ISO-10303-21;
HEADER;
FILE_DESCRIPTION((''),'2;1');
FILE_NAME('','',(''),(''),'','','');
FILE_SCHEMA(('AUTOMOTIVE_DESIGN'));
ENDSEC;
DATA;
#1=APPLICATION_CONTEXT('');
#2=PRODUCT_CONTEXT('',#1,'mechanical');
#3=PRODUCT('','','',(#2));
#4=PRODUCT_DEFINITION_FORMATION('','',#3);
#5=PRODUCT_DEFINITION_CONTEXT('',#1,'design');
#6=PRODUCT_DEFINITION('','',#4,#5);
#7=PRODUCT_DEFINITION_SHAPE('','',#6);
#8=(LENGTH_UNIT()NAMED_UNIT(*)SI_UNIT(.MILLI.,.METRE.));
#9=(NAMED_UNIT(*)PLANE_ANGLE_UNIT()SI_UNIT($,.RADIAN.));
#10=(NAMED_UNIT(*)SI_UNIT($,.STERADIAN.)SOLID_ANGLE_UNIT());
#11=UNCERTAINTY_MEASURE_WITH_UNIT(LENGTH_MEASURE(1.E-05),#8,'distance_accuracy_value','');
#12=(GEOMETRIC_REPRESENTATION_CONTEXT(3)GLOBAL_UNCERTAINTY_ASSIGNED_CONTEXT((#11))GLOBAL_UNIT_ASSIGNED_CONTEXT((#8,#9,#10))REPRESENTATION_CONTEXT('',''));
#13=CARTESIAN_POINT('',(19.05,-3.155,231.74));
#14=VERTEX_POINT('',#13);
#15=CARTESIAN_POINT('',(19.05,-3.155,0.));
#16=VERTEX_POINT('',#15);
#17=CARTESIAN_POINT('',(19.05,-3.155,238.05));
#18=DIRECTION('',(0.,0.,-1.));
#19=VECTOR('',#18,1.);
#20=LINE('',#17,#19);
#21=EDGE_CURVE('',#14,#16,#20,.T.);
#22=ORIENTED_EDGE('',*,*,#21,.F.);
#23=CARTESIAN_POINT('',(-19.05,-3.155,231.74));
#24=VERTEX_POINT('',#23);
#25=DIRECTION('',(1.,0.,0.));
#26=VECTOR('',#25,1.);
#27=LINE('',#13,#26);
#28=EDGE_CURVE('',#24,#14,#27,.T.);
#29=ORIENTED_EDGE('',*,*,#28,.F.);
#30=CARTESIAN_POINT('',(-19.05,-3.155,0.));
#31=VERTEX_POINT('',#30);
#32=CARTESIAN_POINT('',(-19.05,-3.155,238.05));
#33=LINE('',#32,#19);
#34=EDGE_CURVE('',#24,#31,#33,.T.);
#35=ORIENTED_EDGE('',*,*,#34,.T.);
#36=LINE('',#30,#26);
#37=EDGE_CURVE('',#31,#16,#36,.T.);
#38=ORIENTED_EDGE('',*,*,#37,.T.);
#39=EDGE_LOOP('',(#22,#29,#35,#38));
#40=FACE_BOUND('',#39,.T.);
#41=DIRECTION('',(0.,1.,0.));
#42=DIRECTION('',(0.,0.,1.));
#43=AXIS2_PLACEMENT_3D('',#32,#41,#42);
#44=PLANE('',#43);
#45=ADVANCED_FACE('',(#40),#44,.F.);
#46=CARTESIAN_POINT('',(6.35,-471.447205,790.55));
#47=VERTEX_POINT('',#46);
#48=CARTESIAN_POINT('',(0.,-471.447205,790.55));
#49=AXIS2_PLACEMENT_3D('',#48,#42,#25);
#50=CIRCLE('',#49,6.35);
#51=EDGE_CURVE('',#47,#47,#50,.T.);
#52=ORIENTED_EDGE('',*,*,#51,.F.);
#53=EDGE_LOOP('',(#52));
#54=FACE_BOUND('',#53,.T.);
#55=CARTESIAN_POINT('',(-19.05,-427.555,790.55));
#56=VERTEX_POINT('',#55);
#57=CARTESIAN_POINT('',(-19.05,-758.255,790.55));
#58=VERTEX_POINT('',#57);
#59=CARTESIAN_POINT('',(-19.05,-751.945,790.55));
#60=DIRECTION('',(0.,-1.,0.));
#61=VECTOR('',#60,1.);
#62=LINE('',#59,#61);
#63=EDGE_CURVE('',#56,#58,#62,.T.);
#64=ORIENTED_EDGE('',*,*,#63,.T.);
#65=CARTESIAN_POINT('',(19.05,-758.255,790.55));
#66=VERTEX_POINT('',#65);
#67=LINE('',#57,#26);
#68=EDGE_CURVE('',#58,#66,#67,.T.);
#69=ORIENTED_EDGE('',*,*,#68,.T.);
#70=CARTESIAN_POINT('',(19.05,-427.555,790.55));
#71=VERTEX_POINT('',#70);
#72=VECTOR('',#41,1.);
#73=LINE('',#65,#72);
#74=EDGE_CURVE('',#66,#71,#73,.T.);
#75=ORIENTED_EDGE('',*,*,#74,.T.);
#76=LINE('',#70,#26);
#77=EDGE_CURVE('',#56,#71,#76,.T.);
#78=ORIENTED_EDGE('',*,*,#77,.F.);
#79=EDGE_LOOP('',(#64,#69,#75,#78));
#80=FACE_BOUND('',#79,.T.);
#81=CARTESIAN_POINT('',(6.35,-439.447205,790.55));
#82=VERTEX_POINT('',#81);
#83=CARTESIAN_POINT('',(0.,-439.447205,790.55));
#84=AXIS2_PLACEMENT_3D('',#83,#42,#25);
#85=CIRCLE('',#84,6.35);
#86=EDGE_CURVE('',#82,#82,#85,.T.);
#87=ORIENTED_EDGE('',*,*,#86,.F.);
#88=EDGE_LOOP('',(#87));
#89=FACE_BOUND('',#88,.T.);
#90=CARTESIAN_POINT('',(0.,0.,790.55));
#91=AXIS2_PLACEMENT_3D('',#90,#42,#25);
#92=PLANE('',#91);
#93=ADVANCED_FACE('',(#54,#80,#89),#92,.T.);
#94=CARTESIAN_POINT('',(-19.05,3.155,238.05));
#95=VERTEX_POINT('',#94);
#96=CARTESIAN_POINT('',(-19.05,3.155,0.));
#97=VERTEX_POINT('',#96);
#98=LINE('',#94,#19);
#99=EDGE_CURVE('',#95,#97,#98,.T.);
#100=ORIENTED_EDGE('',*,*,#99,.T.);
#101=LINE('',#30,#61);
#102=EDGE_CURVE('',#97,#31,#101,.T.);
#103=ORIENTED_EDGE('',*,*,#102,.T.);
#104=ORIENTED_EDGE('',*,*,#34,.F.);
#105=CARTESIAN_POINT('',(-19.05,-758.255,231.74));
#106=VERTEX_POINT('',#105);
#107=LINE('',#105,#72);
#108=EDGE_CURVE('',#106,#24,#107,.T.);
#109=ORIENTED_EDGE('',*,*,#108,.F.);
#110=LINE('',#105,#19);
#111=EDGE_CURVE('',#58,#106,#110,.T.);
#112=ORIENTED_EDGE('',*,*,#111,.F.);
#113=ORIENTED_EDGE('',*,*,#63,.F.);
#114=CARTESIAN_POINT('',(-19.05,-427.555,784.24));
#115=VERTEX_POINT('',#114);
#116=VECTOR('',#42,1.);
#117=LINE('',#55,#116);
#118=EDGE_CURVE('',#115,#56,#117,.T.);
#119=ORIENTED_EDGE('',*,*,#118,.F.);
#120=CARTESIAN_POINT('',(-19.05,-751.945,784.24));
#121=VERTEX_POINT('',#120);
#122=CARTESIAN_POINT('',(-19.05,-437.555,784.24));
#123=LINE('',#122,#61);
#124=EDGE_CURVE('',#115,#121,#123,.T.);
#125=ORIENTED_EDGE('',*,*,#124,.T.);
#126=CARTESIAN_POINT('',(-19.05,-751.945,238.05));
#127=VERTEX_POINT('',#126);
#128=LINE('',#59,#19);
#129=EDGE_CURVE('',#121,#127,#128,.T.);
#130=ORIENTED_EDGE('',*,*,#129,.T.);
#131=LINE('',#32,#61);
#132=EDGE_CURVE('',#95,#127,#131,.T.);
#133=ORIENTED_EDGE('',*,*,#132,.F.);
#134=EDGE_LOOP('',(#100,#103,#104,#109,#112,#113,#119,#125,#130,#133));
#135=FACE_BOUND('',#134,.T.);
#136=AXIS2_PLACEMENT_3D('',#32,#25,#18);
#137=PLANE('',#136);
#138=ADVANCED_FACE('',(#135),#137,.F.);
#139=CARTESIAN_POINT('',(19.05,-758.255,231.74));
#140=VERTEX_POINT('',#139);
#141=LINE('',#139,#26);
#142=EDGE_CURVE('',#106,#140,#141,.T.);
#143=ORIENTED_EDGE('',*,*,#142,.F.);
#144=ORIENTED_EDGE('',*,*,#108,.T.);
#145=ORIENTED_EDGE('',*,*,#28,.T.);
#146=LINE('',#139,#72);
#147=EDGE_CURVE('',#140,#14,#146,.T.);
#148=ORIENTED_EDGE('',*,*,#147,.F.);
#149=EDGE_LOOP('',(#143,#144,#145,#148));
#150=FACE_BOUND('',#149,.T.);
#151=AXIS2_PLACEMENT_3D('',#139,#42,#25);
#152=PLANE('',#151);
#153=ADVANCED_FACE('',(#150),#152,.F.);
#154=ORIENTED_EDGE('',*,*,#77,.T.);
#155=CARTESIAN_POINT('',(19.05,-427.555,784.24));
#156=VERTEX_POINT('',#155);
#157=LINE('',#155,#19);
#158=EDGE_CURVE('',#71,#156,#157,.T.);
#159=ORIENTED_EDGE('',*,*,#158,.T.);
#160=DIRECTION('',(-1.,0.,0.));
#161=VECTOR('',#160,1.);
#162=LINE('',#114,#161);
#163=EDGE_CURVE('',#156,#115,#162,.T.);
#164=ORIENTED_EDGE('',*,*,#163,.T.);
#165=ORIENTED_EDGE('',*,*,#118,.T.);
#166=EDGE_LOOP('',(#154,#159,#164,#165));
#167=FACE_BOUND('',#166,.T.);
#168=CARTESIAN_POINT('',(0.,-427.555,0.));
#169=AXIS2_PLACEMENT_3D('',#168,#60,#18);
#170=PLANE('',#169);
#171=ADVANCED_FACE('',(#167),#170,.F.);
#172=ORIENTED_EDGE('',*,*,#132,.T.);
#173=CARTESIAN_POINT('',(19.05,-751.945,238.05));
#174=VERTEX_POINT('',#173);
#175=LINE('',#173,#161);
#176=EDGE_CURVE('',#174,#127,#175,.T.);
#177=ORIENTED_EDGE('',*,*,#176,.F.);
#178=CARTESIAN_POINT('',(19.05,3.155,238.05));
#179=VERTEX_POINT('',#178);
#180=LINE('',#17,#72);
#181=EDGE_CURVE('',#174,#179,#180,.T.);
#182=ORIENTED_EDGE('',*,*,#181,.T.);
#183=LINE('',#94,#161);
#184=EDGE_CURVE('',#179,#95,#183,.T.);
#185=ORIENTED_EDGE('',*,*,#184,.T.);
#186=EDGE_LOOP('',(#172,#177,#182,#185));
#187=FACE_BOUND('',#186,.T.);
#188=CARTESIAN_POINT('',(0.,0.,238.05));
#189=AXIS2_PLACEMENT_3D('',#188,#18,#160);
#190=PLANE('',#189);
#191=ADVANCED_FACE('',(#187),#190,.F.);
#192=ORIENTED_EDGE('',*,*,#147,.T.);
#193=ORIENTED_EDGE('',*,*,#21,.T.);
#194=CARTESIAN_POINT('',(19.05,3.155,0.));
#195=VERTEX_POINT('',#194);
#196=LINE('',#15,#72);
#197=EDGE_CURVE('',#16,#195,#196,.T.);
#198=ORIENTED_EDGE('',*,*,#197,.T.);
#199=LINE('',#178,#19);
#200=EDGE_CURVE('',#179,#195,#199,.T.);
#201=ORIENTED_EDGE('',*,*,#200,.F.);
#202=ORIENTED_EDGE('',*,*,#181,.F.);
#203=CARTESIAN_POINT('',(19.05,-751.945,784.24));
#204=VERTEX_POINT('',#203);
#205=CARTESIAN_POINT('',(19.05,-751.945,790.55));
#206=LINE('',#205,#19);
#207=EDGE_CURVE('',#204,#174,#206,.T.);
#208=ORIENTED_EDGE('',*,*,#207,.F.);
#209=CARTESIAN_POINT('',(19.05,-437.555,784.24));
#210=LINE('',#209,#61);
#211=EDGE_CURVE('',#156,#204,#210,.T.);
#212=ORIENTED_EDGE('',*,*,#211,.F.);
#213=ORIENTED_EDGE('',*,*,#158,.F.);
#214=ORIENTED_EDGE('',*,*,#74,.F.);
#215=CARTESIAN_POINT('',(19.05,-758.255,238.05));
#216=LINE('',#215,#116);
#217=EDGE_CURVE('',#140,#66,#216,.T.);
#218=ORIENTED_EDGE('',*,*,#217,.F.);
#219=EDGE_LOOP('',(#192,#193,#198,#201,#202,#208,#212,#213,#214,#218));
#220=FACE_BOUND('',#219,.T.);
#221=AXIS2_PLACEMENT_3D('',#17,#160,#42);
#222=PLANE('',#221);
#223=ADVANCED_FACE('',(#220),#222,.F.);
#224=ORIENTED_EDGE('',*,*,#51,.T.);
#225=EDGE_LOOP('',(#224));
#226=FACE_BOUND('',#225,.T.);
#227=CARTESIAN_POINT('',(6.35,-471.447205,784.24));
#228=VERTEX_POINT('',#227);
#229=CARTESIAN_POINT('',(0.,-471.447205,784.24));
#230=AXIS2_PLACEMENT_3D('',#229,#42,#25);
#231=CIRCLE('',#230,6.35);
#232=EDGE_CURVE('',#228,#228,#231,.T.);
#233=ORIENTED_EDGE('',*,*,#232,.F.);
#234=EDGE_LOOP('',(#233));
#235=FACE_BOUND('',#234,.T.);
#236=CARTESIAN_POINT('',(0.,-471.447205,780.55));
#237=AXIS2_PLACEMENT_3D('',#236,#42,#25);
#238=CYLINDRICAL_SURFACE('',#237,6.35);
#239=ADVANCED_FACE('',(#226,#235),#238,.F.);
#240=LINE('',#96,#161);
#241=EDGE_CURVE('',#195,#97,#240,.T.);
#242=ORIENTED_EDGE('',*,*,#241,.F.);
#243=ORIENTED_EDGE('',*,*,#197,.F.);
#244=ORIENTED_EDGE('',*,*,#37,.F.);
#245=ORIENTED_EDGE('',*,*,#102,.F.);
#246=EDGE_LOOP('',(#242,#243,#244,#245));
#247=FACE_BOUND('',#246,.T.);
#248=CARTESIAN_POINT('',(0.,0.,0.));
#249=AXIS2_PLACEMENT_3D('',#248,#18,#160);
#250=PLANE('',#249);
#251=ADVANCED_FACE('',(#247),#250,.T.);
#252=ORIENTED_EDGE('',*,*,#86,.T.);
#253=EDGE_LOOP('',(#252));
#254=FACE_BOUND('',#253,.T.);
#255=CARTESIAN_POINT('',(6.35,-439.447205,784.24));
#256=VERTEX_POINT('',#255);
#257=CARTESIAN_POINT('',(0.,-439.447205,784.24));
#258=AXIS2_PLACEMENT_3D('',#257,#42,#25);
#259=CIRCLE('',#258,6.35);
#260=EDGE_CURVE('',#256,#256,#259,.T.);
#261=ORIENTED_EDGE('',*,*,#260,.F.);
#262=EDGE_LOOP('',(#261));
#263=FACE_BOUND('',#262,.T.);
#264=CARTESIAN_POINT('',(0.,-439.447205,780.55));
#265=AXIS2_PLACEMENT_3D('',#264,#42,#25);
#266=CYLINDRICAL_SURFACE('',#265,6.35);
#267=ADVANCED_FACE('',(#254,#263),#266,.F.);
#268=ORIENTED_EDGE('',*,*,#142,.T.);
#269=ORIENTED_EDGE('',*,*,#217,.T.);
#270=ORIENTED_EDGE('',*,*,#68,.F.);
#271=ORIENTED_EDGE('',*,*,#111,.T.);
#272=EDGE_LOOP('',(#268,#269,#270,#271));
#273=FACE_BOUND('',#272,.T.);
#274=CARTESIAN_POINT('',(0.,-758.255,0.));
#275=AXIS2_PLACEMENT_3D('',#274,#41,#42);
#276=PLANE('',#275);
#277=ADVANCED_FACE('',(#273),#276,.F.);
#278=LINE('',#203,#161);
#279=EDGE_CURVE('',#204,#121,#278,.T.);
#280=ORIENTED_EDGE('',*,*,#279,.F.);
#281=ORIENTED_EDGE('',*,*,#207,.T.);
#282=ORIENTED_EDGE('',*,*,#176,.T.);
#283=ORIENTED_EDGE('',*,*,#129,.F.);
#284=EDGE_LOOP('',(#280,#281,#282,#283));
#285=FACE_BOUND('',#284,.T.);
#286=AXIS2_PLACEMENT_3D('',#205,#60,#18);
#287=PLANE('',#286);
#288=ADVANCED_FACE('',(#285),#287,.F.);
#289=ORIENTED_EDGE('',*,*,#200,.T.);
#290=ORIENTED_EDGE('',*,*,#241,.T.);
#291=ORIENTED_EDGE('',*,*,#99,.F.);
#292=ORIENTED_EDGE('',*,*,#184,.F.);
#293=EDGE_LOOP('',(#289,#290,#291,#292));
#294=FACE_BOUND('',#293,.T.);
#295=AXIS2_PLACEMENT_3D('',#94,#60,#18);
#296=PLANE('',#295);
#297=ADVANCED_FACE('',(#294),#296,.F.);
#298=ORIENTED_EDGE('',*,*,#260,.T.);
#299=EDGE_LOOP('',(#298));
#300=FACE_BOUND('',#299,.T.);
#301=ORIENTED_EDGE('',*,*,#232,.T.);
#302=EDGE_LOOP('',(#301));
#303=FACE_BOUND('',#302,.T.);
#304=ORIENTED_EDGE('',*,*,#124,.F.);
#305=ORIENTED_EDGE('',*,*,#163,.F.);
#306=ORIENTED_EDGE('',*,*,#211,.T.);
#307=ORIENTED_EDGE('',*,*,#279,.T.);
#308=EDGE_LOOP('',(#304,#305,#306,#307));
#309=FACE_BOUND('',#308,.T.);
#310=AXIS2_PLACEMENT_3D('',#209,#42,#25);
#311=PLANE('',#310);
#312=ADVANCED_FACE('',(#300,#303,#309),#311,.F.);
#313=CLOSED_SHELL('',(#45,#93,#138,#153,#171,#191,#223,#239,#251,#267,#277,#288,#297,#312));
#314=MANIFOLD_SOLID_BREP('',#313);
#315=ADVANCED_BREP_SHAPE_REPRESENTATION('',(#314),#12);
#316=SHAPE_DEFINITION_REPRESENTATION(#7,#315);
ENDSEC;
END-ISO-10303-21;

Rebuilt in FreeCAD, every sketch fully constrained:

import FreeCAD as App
import Part
import Sketcher


def add_polygon(sketch, points):
    """Adds a closed chain of lines whose ends are joined by coincident constraints."""
    first, n = sketch.GeometryCount, len(points)
    for a, b in zip(points, points[1:] + points[:1]):
        sketch.addGeometry(Part.LineSegment(App.Vector(*a, 0), App.Vector(*b, 0)), False)
    for i in range(n):
        sketch.addConstraint(Sketcher.Constraint("Coincident", first + i, 2, first + (i + 1) % n, 1))

doc = App.newDocument("Part")
params = doc.addObject("Spreadsheet::Sheet", "Params")
for row, (alias, value) in enumerate([
    ("sketch1_width", "38.1 mm"),
    ("sketch1_height", "6.31 mm"),
    ("pad1_length", "238.05 mm"),
    ("sketch2_width", "38.1 mm"),
    ("sketch2_height", "6.31 mm"),
    ("pad2_length", "755.1 mm"),
    ("sketch3_width", "38.1 mm"),
    ("sketch3_height", "6.31 mm"),
    ("pad3_length", "552.5 mm"),
    ("sketch4_width", "38.1 mm"),
    ("sketch4_height", "6.31 mm"),
    ("pad4_length", "314.39 mm"),
    ("sketch5_width", "38.1 mm"),
    ("sketch5_height", "6.31 mm"),
    ("pad5_length", "10 mm"),
    ("sketch6_diameter", "12.7 mm"),
    ("pocket1_length", "10 mm"),
], start=1):
    params.set(f"A{row}", alias)
    params.set(f"B{row}", "=" + value)
    params.setAlias(f"B{row}", alias)

body = doc.addObject("PartDesign::Body", "Body")

sketch1 = body.newObject("Sketcher::SketchObject", "Sketch")
sketch1.AttachmentSupport = (doc.getObject("XY_Plane"), [""])
sketch1.MapMode = "FlatFace"
add_polygon(sketch1, [(-19, 3), (-19, -3), (19, -3), (19, 3)])
sketch1.addConstraint(Sketcher.Constraint("Vertical", 0))
sketch1.addConstraint(Sketcher.Constraint("Horizontal", 1))
sketch1.addConstraint(Sketcher.Constraint("Vertical", 2))
sketch1.addConstraint(Sketcher.Constraint("Horizontal", 3))
sketch1.addConstraint(Sketcher.Constraint("Symmetric", 0, 2, 2, 2, -1, 1))
sketch1.addConstraint(Sketcher.Constraint("DistanceX", 1, 1, 1, 2, 38.1))
sketch1.addConstraint(Sketcher.Constraint("DistanceY", 0, 2, 0, 1, 6.31))
sketch1.setExpression("Constraints[9]", "Params.sketch1_width")
sketch1.setExpression("Constraints[10]", "Params.sketch1_height")
pad1 = body.newObject("PartDesign::Pad", "Pad")
pad1.Profile = sketch1
pad1.setExpression("Length", "Params.pad1_length")

sketch2 = body.newObject("Sketcher::SketchObject", "Sketch001")
sketch2.AttachmentSupport = (doc.getObject("XZ_Plane"), [""])
sketch2.MapMode = "FlatFace"
sketch2.AttachmentOffset = App.Placement(App.Vector(0, 0, 3.155), App.Rotation())
add_polygon(sketch2, [(-19, 238), (-19, 232), (19, 232), (19, 238)])
sketch2.addConstraint(Sketcher.Constraint("Vertical", 0))
sketch2.addConstraint(Sketcher.Constraint("Horizontal", 1))
sketch2.addConstraint(Sketcher.Constraint("Vertical", 2))
sketch2.addConstraint(Sketcher.Constraint("Horizontal", 3))
sketch2.addConstraint(Sketcher.Constraint("DistanceX", 1, 1, 1, 2, 38.1))
sketch2.addConstraint(Sketcher.Constraint("DistanceY", 0, 2, 0, 1, 6.31))
sketch2.addConstraint(Sketcher.Constraint("DistanceX", 0, 2, -1, 1, 19.05))
sketch2.addConstraint(Sketcher.Constraint("DistanceY", -1, 1, 0, 2, 231.74))
sketch2.setExpression("Constraints[8]", "Params.sketch2_width")
sketch2.setExpression("Constraints[9]", "Params.sketch2_height")
pad2 = body.newObject("PartDesign::Pad", "Pad001")
pad2.Profile = sketch2
pad2.setExpression("Length", "Params.pad2_length")

sketch3 = body.newObject("Sketcher::SketchObject", "Sketch002")
sketch3.AttachmentSupport = (doc.getObject("XY_Plane"), [""])
sketch3.MapMode = "FlatFace"
sketch3.AttachmentOffset = App.Placement(App.Vector(0, 0, 238.05), App.Rotation())
add_polygon(sketch3, [(-19, -752), (-19, -758), (19, -758), (19, -752)])
sketch3.addConstraint(Sketcher.Constraint("Vertical", 0))
sketch3.addConstraint(Sketcher.Constraint("Horizontal", 1))
sketch3.addConstraint(Sketcher.Constraint("Vertical", 2))
sketch3.addConstraint(Sketcher.Constraint("Horizontal", 3))
sketch3.addConstraint(Sketcher.Constraint("DistanceX", 1, 1, 1, 2, 38.1))
sketch3.addConstraint(Sketcher.Constraint("DistanceY", 0, 2, 0, 1, 6.31))
sketch3.addConstraint(Sketcher.Constraint("DistanceX", 0, 2, -1, 1, 19.05))
sketch3.addConstraint(Sketcher.Constraint("DistanceY", 0, 2, -1, 1, 758.255))
sketch3.setExpression("Constraints[8]", "Params.sketch3_width")
sketch3.setExpression("Constraints[9]", "Params.sketch3_height")
pad3 = body.newObject("PartDesign::Pad", "Pad002")
pad3.Profile = sketch3
pad3.setExpression("Length", "Params.pad3_length")

sketch4 = body.newObject("Sketcher::SketchObject", "Sketch003")
sketch4.AttachmentSupport = (doc.getObject("XZ_Plane"), [""])
sketch4.MapMode = "FlatFace"
sketch4.AttachmentOffset = App.Placement(App.Vector(0, 0, 751.945), App.Rotation())
add_polygon(sketch4, [(-19, 784), (-19, 791), (19, 791), (19, 784)])
sketch4.addConstraint(Sketcher.Constraint("Vertical", 0))
sketch4.addConstraint(Sketcher.Constraint("Horizontal", 1))
sketch4.addConstraint(Sketcher.Constraint("Vertical", 2))
sketch4.addConstraint(Sketcher.Constraint("Horizontal", 3))
sketch4.addConstraint(Sketcher.Constraint("DistanceX", 1, 1, 1, 2, 38.1))
sketch4.addConstraint(Sketcher.Constraint("DistanceY", 0, 1, 0, 2, 6.31))
sketch4.addConstraint(Sketcher.Constraint("DistanceX", 0, 2, -1, 1, 19.05))
sketch4.addConstraint(Sketcher.Constraint("DistanceY", -1, 1, 0, 2, 790.55))
sketch4.setExpression("Constraints[8]", "Params.sketch4_width")
sketch4.setExpression("Constraints[9]", "Params.sketch4_height")
pad4 = body.newObject("PartDesign::Pad", "Pad003")
pad4.Profile = sketch4
pad4.setExpression("Length", "Params.pad4_length")
pad4.Reversed = True

sketch5 = body.newObject("Sketcher::SketchObject", "Sketch004")
sketch5.AttachmentSupport = (doc.getObject("XZ_Plane"), [""])
sketch5.MapMode = "FlatFace"
sketch5.AttachmentOffset = App.Placement(App.Vector(0, 0, 437.555), App.Rotation())
add_polygon(sketch5, [(-19, 784), (-19, 791), (19, 791), (19, 784)])
sketch5.addConstraint(Sketcher.Constraint("Vertical", 0))
sketch5.addConstraint(Sketcher.Constraint("Horizontal", 1))
sketch5.addConstraint(Sketcher.Constraint("Vertical", 2))
sketch5.addConstraint(Sketcher.Constraint("Horizontal", 3))
sketch5.addConstraint(Sketcher.Constraint("DistanceX", 1, 1, 1, 2, 38.1))
sketch5.addConstraint(Sketcher.Constraint("DistanceY", 0, 1, 0, 2, 6.31))
sketch5.addConstraint(Sketcher.Constraint("DistanceX", 0, 2, -1, 1, 19.05))
sketch5.addConstraint(Sketcher.Constraint("DistanceY", -1, 1, 0, 2, 790.55))
sketch5.setExpression("Constraints[8]", "Params.sketch5_width")
sketch5.setExpression("Constraints[9]", "Params.sketch5_height")
pad5 = body.newObject("PartDesign::Pad", "Pad004")
pad5.Profile = sketch5
pad5.setExpression("Length", "Params.pad5_length")
pad5.Reversed = True

sketch6 = body.newObject("Sketcher::SketchObject", "Sketch005")
sketch6.AttachmentSupport = (doc.getObject("XY_Plane"), [""])
sketch6.MapMode = "FlatFace"
sketch6.AttachmentOffset = App.Placement(App.Vector(0, 0, 790.55), App.Rotation())
sketch6.addGeometry(Part.Circle(App.Vector(0, -471, 0), App.Vector(0, 0, 1), 6), False)
sketch6.addGeometry(Part.Circle(App.Vector(0, -439, 0), App.Vector(0, 0, 1), 6), False)
sketch6.addConstraint(Sketcher.Constraint("Equal", 0, 1))
sketch6.addConstraint(Sketcher.Constraint("PointOnObject", 0, 3, -2))
sketch6.addConstraint(Sketcher.Constraint("PointOnObject", 1, 3, -2))
sketch6.addConstraint(Sketcher.Constraint("Diameter", 0, 12.7))
sketch6.addConstraint(Sketcher.Constraint("DistanceY", 0, 3, 1, 3, 32.0))
sketch6.addConstraint(Sketcher.Constraint("DistanceY", 0, 3, -1, 1, 471.447205))
sketch6.setExpression("Constraints[3]", "Params.sketch6_diameter")
pocket1 = body.newObject("PartDesign::Pocket", "Pocket")
pocket1.Profile = sketch6
pocket1.setExpression("Length", "Params.pocket1_length")

doc.recompute()
